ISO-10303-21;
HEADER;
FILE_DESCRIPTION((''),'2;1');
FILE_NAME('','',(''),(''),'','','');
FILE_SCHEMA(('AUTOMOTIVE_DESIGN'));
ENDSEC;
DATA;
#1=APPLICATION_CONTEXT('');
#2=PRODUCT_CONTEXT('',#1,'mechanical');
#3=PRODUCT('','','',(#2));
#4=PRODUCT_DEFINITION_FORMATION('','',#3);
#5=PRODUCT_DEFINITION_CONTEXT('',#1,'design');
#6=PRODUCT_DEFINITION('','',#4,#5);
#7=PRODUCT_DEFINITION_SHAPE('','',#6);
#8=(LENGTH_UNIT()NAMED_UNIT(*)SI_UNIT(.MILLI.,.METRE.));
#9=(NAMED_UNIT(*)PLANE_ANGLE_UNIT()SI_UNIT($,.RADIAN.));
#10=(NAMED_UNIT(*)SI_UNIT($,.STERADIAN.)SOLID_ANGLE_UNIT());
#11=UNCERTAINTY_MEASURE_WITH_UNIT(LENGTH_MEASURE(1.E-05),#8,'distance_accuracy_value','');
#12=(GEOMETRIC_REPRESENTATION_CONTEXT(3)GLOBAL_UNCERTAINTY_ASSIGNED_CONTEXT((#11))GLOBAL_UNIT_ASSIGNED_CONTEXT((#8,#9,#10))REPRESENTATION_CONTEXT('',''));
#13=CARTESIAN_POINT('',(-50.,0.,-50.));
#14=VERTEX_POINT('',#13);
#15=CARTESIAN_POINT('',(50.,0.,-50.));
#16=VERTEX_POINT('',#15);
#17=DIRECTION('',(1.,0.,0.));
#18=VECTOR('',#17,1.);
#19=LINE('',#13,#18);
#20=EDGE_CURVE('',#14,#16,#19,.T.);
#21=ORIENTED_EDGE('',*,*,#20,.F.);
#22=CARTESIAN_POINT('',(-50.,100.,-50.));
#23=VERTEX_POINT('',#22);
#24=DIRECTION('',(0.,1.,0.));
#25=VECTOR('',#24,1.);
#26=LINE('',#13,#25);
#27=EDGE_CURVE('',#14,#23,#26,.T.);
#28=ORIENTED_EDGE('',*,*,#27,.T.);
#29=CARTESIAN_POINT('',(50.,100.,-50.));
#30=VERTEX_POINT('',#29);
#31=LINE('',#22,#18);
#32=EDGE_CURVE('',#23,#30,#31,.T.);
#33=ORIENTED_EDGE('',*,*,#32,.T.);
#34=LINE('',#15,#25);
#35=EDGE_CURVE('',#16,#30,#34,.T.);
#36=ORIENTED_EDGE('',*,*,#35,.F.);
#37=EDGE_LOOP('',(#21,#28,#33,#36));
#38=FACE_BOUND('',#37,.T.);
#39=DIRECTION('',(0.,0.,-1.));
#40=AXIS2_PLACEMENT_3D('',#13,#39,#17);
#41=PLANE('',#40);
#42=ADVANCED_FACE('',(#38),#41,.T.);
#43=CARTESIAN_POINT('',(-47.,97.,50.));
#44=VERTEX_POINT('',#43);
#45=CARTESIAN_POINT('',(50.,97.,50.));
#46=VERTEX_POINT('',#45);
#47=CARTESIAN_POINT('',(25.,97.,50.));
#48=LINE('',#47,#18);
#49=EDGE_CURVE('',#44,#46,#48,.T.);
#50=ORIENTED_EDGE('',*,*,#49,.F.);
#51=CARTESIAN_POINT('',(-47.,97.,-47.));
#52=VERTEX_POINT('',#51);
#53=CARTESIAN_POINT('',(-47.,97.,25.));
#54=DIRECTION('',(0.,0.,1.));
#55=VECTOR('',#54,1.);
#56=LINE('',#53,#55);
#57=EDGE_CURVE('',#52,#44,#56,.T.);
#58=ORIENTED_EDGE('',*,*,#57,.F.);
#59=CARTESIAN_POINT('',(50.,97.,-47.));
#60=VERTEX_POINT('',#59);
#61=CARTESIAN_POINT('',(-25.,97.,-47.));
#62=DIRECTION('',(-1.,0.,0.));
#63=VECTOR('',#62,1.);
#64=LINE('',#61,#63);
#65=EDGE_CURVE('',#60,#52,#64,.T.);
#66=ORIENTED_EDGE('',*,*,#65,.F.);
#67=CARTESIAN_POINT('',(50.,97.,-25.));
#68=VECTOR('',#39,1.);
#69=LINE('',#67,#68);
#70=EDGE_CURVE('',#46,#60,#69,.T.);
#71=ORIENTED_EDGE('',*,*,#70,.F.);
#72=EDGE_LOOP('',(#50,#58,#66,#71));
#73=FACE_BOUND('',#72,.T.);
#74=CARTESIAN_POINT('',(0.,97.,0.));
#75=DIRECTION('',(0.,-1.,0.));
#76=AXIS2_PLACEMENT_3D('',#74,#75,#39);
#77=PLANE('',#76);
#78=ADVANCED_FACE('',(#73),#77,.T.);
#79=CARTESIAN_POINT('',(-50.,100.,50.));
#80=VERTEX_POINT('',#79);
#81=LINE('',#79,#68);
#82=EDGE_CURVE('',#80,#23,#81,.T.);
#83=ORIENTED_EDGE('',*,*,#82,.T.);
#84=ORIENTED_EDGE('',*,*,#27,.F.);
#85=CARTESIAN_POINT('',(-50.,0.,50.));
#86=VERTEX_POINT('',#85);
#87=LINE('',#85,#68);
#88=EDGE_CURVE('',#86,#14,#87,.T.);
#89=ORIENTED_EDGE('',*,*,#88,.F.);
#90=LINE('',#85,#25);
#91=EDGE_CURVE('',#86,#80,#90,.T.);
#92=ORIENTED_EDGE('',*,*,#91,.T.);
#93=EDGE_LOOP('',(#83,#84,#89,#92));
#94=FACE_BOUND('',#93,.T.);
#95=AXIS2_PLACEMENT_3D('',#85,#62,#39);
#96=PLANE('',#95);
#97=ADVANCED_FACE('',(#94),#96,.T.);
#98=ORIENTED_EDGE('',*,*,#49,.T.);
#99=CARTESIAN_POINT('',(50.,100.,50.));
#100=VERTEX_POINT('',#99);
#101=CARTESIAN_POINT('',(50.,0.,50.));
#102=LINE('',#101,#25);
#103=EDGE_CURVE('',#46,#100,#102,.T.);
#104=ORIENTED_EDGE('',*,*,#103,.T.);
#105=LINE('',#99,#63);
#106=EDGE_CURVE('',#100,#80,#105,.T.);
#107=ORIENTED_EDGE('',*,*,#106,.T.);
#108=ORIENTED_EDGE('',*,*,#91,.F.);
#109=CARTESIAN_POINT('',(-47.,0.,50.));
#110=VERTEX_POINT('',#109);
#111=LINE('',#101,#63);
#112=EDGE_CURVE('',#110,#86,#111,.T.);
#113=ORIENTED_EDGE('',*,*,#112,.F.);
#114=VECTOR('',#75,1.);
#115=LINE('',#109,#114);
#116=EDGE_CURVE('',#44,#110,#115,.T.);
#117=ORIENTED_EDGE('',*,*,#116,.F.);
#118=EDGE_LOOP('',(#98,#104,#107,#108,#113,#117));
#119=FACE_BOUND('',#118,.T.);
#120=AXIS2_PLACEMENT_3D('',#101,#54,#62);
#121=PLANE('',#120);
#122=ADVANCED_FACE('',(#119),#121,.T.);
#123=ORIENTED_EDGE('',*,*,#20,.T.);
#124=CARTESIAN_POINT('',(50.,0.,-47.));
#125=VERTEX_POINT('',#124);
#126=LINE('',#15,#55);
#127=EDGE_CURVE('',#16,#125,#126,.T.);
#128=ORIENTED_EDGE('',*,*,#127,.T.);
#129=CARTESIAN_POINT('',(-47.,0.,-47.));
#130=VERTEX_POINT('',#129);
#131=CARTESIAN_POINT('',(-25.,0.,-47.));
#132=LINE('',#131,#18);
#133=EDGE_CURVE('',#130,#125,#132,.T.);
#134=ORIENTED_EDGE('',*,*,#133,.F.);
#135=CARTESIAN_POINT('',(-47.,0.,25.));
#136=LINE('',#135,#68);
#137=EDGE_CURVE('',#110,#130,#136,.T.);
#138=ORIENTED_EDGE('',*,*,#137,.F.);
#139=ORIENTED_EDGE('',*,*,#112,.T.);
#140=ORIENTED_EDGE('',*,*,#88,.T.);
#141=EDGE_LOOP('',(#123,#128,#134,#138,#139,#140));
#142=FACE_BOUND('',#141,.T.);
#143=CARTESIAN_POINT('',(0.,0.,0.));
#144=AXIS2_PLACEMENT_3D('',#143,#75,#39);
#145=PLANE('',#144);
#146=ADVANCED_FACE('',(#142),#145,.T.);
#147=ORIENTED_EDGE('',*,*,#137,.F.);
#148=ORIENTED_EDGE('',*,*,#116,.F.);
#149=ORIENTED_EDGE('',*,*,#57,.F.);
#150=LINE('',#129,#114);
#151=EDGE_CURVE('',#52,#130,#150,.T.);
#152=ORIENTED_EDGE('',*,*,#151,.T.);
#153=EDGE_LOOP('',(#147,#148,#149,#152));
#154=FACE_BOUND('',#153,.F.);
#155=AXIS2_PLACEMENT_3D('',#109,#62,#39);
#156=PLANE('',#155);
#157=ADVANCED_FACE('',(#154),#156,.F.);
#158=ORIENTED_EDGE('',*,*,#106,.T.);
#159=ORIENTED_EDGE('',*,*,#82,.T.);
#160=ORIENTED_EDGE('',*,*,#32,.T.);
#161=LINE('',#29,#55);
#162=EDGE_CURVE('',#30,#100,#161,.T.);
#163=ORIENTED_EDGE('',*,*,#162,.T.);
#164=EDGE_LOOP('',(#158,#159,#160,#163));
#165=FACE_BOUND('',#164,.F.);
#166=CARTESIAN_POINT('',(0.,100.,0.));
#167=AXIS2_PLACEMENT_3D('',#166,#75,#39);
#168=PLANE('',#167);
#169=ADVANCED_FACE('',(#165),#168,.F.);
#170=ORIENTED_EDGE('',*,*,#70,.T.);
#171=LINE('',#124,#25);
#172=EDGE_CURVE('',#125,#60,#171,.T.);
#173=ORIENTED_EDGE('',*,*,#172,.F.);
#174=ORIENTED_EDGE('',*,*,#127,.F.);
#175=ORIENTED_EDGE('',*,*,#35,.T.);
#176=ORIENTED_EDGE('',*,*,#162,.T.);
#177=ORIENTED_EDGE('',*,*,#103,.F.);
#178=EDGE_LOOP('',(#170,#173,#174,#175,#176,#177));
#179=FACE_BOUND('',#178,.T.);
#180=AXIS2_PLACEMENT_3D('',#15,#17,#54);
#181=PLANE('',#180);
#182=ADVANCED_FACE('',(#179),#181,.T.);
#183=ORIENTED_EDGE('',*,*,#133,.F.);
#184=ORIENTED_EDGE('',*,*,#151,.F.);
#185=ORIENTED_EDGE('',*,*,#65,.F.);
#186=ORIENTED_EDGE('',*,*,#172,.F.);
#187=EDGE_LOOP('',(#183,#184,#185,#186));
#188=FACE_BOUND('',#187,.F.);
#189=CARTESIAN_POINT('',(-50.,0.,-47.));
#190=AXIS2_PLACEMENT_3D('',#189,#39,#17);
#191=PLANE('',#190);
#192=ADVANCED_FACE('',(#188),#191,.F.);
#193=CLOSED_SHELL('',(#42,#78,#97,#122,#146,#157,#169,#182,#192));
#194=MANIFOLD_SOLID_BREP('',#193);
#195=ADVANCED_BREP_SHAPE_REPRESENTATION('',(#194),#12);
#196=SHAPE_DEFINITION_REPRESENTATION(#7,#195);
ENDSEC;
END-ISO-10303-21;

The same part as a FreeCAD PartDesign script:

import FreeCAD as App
import Part
import Sketcher
from FreeCAD import Vector
Q = App.Units.Quantity


def faces_at(feature, points):
    """Names of the faces that lie closest to the given points."""
    faces = feature.Shape.Faces
    near = lambda p: min(range(len(faces)), key=lambda i: faces[i].distToShape(Part.Vertex(*p))[0])
    return sorted({f"Face{near(p) + 1}" for p in points})


def add_polygon(sketch, points):
    """Adds a closed chain of lines whose ends are joined by coincident constraints."""
    first, n = sketch.GeometryCount, len(points)
    for a, b in zip(points, points[1:] + points[:1]):
        sketch.addGeometry(Part.LineSegment(App.Vector(*a, 0), App.Vector(*b, 0)), False)
    for i in range(n):
        sketch.addConstraint(Sketcher.Constraint("Coincident", first + i, 2, first + (i + 1) % n, 1))

doc = App.newDocument("Part")
body = doc.addObject("PartDesign::Body", "Body")

# Sketch on XZ plane
sketch1 = body.newObject("Sketcher::SketchObject", "Sketch")
sketch1.AttachmentSupport = (doc.getObject("XZ_Plane"), [""])
sketch1.MapMode = "FlatFace"
add_polygon(sketch1, [(50, -50), (50, 50), (-50, 50), (-50, -50)])  # lines 0-3
sketch1.addConstraint([
    Sketcher.Constraint("Vertical", 0),
    Sketcher.Constraint("Horizontal", 1),
    Sketcher.Constraint("Vertical", 2),
    Sketcher.Constraint("Horizontal", 3),
    Sketcher.Constraint("Symmetric", 0, 2, 2, 2, -1, 1),
    Sketcher.Constraint("Equal", 3, 0),
    Sketcher.Constraint("DistanceX", -1, 1, 0, 2, Q("1.9685 in")),
])
pad1 = body.newObject("PartDesign::Pad", "Pad")
pad1.Profile = sketch1
pad1.Length = Q("3.9370079 in")
pad1.Reversed = True
doc.recompute()

thickness = body.newObject("PartDesign::Thickness", "Thickness")
thickness.Base = (pad1, faces_at(pad1, [(-32.333, 0, 34.333), (34.333, 82.333, 50), (50, 82.333, -34.333)]))
thickness.Value = Q("0.1181102 in")
thickness.Reversed = True
thickness.Join = "Intersection"

doc.recompute()
